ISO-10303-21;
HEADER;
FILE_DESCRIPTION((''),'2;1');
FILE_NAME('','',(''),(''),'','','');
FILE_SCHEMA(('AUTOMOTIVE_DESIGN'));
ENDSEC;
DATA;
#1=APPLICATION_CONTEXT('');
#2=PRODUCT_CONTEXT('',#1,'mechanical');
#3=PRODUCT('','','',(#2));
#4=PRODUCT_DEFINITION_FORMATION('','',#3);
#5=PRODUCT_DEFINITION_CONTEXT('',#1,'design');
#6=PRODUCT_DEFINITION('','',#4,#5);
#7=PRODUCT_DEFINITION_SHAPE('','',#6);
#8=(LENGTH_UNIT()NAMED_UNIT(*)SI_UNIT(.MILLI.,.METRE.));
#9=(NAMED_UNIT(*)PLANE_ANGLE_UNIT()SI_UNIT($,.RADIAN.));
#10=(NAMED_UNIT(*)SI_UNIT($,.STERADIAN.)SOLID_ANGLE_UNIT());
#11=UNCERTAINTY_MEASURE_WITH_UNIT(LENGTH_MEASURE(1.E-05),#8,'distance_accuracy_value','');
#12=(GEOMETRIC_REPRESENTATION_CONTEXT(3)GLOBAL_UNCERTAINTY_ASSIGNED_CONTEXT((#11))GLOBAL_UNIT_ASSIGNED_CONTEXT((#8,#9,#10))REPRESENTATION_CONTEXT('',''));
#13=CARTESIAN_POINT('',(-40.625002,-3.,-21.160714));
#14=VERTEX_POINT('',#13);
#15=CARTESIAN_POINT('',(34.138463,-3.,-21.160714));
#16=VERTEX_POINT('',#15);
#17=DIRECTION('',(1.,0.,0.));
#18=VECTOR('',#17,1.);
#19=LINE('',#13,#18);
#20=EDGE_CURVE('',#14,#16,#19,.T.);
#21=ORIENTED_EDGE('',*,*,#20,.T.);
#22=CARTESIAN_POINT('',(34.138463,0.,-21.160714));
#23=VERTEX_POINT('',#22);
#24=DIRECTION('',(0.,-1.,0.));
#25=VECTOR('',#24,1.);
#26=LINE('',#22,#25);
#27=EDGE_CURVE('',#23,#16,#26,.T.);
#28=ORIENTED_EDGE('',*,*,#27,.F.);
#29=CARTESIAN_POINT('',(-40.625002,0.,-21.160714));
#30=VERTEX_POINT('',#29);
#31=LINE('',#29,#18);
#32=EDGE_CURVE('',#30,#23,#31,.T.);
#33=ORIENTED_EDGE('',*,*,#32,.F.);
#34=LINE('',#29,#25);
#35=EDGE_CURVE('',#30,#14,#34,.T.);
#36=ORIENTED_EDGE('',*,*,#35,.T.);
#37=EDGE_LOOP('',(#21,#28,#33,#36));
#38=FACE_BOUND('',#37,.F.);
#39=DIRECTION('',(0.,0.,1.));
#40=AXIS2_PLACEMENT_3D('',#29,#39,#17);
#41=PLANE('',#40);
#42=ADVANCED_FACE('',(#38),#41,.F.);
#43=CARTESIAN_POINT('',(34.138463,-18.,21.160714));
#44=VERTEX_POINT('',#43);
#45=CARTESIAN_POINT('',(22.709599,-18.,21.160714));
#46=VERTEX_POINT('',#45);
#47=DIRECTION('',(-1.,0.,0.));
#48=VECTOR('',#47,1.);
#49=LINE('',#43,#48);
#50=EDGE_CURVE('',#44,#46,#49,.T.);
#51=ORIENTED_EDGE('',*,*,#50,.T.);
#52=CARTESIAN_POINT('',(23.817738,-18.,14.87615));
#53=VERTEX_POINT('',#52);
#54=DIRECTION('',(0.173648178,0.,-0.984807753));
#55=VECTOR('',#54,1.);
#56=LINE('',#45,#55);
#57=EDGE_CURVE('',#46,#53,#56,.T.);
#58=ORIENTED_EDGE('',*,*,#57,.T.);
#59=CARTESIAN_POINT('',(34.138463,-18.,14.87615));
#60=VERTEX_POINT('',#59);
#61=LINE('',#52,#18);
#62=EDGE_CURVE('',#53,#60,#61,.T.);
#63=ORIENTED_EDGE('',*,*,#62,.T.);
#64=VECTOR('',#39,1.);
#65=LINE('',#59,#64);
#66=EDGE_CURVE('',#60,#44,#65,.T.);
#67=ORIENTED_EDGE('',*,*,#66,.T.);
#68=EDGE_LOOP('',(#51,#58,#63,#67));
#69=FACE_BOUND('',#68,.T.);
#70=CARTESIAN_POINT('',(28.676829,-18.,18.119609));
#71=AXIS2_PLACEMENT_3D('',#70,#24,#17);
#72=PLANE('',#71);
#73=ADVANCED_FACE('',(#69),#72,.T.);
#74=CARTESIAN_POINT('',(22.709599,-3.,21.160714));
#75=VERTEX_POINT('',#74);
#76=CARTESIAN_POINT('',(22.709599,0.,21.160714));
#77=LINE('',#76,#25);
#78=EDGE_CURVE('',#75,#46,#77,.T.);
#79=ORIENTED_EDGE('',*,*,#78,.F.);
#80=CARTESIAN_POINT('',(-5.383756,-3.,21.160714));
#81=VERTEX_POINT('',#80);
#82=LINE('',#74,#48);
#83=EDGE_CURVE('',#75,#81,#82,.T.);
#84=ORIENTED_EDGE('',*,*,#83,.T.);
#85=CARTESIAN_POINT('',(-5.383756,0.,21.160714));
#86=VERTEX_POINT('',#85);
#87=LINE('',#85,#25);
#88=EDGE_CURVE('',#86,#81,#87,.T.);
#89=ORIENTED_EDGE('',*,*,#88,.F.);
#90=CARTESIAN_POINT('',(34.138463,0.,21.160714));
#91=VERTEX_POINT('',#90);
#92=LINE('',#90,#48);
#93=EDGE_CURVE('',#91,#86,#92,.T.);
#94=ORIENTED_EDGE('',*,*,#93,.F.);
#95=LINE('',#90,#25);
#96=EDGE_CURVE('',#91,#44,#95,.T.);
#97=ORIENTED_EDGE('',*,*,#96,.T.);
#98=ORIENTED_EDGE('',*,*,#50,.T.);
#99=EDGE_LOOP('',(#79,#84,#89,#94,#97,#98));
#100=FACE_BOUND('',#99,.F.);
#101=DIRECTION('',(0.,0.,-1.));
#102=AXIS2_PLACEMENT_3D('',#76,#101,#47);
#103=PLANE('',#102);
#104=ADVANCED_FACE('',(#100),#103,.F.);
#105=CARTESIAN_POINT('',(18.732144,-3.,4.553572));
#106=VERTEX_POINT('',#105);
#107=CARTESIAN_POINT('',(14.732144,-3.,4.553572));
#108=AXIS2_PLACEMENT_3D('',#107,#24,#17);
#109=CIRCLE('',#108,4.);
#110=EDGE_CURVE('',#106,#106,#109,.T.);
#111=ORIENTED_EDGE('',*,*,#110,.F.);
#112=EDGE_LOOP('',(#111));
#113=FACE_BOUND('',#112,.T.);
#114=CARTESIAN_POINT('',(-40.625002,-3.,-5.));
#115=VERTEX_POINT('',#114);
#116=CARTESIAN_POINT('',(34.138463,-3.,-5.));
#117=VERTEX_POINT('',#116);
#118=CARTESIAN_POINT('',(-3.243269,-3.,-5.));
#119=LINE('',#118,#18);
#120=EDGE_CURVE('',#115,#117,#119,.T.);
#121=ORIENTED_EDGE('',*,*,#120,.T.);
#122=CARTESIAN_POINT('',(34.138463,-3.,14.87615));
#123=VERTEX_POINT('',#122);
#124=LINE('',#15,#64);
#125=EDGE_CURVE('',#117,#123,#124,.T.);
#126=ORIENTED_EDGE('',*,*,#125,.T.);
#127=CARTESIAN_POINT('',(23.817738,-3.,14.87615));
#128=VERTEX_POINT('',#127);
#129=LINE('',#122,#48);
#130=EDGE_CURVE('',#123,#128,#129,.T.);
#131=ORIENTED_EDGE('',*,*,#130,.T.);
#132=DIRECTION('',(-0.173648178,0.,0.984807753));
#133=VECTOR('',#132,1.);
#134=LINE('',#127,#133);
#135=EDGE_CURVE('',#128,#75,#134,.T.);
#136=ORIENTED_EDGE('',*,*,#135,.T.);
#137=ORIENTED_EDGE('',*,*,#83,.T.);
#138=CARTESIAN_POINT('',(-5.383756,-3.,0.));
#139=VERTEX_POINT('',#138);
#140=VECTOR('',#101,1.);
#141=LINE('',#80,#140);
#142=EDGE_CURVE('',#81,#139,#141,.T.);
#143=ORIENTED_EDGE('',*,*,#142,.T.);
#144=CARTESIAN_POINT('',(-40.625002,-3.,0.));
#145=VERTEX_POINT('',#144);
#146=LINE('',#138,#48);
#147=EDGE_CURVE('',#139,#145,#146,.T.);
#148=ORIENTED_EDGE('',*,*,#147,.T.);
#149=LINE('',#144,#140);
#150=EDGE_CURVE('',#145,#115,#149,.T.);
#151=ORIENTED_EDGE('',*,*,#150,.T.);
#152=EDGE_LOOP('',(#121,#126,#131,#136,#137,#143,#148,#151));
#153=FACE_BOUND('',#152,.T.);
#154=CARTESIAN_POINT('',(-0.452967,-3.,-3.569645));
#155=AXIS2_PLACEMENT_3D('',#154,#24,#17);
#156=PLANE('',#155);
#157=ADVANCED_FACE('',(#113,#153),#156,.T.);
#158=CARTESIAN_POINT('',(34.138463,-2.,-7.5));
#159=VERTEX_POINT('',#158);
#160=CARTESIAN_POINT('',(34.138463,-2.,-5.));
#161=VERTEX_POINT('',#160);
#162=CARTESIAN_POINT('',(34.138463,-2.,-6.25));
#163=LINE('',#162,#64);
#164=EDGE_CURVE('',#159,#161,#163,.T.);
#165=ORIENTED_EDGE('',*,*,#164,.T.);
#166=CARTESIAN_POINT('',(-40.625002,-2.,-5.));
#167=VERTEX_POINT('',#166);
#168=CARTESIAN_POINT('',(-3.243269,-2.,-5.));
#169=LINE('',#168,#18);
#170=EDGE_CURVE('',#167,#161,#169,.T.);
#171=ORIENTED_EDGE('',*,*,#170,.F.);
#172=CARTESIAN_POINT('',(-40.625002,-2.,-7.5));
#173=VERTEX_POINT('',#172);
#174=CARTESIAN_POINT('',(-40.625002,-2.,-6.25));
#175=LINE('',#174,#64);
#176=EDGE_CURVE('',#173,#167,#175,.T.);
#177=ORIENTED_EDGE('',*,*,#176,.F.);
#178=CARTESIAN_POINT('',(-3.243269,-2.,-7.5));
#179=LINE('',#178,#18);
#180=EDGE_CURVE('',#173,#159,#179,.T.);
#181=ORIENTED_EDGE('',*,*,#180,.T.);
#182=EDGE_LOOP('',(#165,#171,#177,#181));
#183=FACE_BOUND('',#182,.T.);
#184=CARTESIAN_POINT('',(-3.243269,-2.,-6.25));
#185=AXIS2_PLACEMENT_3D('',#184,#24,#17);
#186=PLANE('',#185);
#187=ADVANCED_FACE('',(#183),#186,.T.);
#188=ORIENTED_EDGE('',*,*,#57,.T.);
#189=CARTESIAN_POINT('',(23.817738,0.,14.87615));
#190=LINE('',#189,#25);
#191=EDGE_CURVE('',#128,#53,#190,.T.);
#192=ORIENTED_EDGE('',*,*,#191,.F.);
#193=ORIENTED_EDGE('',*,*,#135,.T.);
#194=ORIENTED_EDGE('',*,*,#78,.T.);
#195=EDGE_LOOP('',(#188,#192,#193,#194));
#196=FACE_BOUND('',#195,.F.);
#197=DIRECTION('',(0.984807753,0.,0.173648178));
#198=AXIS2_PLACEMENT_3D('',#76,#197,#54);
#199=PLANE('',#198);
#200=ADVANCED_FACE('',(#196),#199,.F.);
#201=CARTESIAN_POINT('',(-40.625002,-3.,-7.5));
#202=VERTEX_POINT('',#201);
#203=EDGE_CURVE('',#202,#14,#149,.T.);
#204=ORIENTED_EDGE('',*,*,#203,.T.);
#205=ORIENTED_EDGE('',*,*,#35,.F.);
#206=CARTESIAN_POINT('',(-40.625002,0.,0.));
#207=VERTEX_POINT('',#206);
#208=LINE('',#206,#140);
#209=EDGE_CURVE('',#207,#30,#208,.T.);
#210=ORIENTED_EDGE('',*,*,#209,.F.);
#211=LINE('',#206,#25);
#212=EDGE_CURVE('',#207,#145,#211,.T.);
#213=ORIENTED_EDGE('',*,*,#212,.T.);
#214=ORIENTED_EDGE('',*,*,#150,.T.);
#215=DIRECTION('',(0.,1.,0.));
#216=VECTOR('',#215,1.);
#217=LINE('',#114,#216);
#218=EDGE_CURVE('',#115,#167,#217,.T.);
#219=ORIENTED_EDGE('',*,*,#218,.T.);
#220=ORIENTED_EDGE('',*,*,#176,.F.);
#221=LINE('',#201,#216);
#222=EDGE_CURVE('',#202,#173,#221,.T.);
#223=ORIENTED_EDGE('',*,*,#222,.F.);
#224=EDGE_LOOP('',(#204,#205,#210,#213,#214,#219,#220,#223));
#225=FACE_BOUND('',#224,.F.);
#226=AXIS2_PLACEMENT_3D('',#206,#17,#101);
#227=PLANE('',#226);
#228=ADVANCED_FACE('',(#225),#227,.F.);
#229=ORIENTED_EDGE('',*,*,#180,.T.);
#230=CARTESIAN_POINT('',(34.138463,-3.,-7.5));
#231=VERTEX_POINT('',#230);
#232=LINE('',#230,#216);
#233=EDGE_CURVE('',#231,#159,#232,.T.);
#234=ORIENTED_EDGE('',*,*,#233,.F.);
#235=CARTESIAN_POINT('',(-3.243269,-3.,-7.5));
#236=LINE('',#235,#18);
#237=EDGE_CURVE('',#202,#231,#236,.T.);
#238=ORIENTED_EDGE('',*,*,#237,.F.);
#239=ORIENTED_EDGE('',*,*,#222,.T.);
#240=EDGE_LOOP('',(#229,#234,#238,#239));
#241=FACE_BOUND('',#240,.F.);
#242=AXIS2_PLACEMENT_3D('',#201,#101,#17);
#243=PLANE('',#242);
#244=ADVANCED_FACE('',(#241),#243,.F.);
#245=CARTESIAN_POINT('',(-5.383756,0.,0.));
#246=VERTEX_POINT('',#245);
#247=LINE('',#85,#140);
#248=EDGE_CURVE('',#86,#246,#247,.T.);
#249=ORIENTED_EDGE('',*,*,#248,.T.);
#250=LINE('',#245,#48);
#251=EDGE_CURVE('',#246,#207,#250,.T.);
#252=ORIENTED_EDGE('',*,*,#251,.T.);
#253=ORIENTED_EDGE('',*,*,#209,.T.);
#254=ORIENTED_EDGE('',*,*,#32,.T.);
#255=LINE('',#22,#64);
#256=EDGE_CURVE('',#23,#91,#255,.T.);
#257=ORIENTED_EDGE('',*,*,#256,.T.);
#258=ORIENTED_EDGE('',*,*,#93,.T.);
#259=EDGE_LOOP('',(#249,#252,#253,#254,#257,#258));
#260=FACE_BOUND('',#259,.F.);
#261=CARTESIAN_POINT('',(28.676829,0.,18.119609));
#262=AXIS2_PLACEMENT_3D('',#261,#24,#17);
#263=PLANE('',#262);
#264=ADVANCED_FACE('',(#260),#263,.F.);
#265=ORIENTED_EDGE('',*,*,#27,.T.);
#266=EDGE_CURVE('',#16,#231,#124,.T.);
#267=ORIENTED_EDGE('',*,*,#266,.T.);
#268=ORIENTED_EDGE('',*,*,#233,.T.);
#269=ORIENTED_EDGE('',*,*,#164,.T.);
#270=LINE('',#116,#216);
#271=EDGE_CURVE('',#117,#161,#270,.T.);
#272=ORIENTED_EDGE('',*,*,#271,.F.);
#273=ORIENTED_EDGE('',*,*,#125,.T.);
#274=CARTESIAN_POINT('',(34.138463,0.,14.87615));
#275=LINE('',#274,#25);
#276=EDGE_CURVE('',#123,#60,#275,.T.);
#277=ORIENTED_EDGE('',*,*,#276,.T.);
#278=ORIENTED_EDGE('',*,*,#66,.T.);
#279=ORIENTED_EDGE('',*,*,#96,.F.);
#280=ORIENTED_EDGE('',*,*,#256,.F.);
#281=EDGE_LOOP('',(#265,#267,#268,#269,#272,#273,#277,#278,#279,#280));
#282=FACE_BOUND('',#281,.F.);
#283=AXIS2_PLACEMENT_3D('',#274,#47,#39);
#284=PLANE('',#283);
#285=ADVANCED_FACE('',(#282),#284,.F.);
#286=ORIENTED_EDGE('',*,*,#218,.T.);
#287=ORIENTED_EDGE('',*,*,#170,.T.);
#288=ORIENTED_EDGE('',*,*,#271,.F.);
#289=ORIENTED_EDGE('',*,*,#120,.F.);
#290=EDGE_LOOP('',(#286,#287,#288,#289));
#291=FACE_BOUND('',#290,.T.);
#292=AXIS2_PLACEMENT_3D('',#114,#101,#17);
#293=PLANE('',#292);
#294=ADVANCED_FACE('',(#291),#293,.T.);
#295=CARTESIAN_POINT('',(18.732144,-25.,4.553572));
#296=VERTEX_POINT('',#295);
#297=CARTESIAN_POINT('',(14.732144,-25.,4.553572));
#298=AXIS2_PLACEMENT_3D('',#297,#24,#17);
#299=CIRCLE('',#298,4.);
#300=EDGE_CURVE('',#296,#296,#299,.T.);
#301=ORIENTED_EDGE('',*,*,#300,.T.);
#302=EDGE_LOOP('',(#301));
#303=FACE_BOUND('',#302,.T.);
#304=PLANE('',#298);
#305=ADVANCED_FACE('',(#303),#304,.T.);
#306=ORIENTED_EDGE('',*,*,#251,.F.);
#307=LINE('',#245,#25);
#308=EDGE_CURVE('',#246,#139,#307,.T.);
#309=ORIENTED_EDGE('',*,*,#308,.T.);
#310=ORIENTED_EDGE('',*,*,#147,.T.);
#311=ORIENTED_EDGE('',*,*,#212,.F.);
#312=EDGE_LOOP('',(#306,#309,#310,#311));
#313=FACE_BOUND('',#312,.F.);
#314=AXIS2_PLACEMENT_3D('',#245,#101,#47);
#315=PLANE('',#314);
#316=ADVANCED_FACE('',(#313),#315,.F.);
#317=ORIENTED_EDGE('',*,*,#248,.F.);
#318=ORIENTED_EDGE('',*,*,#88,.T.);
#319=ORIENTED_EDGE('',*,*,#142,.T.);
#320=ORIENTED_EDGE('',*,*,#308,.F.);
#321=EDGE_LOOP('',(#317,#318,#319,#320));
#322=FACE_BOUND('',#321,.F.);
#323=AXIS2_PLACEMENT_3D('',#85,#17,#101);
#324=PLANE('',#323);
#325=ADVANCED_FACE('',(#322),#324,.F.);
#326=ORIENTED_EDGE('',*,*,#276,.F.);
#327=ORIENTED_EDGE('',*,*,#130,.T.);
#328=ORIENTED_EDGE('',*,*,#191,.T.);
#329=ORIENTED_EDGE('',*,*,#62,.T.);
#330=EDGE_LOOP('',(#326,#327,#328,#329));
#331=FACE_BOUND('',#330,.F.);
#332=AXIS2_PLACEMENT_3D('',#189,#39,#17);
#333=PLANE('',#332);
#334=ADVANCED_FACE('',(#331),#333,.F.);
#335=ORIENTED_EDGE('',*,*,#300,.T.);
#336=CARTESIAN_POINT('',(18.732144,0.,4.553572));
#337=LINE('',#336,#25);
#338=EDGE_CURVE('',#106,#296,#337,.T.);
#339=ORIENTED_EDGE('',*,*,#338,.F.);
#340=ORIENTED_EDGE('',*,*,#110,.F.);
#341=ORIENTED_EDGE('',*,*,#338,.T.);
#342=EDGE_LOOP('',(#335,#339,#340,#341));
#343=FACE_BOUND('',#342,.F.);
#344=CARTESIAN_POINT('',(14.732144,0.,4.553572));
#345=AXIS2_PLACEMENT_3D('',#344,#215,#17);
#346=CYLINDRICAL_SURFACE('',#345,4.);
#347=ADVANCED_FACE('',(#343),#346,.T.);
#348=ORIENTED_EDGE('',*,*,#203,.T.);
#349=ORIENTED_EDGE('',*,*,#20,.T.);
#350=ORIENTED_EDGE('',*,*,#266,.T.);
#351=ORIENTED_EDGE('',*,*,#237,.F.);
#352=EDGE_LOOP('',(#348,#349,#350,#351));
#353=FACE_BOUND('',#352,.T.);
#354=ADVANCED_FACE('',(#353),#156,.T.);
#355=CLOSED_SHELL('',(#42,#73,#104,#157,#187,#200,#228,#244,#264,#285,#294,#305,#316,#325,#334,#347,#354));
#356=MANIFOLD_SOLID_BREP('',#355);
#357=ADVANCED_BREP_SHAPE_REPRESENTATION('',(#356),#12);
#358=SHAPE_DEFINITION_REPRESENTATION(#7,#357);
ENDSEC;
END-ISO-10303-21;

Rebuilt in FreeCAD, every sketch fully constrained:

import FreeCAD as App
import Part
import Sketcher
Q = App.Units.Quantity


def add_polygon(sketch, points):
    """Adds a closed chain of lines whose ends are joined by coincident constraints."""
    first, n = sketch.GeometryCount, len(points)
    for a, b in zip(points, points[1:] + points[:1]):
        sketch.addGeometry(Part.LineSegment(App.Vector(*a, 0), App.Vector(*b, 0)), False)
    for i in range(n):
        sketch.addConstraint(Sketcher.Constraint("Coincident", first + i, 2, first + (i + 1) % n, 1))

doc = App.newDocument("Part")
params = doc.addObject("Spreadsheet::Sheet", "Params")
for row, (alias, value) in enumerate([
    ("sketch1_diameter", "8 mm"),
    ("pad1_length", "3 mm"),
    ("sketch2_diameter", "8 mm"),
    ("pad2_length", "25 mm"),
    ("sketch3_height", "2.5 mm"),
    ("pocket1_length", "1 mm"),
    ("pad3_length", "18 mm"),
], start=1):
    params.set(f"A{row}", alias)
    params.set(f"B{row}", "=" + value)
    params.setAlias(f"B{row}", alias)

body = doc.addObject("PartDesign::Body", "Body")

sketch1 = body.newObject("Sketcher::SketchObject", "Sketch")
sketch1.AttachmentSupport = (doc.getObject("XZ_Plane"), [""])
sketch1.MapMode = "FlatFace"
add_polygon(sketch1, [(-5.4, 0), (-40.6, 0), (-40.6, -21.2), (34.1, -21.2), (34.1, 14.9), (23.8, 14.9), (22.7, 21.2), (-5.4, 21.2)])
sketch1.addGeometry(Part.Circle(App.Vector(14.7, 4.6, 0), App.Vector(0, 0, 1), 4), False)
sketch1.addConstraint(Sketcher.Constraint("Horizontal", 0))
sketch1.addConstraint(Sketcher.Constraint("Vertical", 1))
sketch1.addConstraint(Sketcher.Constraint("Horizontal", 2))
sketch1.addConstraint(Sketcher.Constraint("Vertical", 3))
sketch1.addConstraint(Sketcher.Constraint("Horizontal", 4))
sketch1.addConstraint(Sketcher.Constraint("Horizontal", 6))
sketch1.addConstraint(Sketcher.Constraint("Vertical", 7))
sketch1.addConstraint(Sketcher.Constraint("PointOnObject", 0, 2, -1))
sketch1.addConstraint(Sketcher.Constraint("Equal", 1, 7))
sketch1.addConstraint(Sketcher.Constraint("Diameter", 8, Q("8 mm")))
sketch1.addConstraint(Sketcher.Constraint("Angle", 5, Q("100 deg")))
sketch1.addConstraint(Sketcher.Constraint("DistanceX", -1, 1, 5, 2, Q("22.709599 mm")))
sketch1.addConstraint(Sketcher.Constraint("DistanceX", 0, 2, 5, 2, Q("63.334602 mm")))
sketch1.addConstraint(Sketcher.Constraint("DistanceX", 6, 2, 8, 3, Q("20.1159 mm")))
sketch1.addConstraint(Sketcher.Constraint("DistanceX", 0, 2, 0, 1, Q("35.241246 mm")))
sketch1.addConstraint(Sketcher.Constraint("DistanceX", 2, 1, 2, 2, Q("74.763466 mm")))
sketch1.addConstraint(Sketcher.Constraint("DistanceX", 4, 2, 4, 1, Q("10.320726 mm")))
sketch1.addConstraint(Sketcher.Constraint("DistanceY", 1, 2, 1, 1, Q("21.160714 mm")))
sketch1.addConstraint(Sketcher.Constraint("DistanceY", -1, 1, 8, 3, Q("4.553572 mm")))
sketch1.setExpression("Constraints[17]", "Params.sketch1_diameter")
pad1 = body.newObject("PartDesign::Pad", "Pad")
pad1.Profile = sketch1
pad1.setExpression("Length", "Params.pad1_length")

sketch2 = body.newObject("Sketcher::SketchObject", "Sketch001")
sketch2.AttachmentSupport = (doc.getObject("XZ_Plane"), [""])
sketch2.MapMode = "FlatFace"
sketch2.addGeometry(Part.Circle(App.Vector(14.7, 4.6, 0), App.Vector(0, 0, 1), 4), False)
sketch2.addConstraint(Sketcher.Constraint("Diameter", 0, Q("8 mm")))
sketch2.addConstraint(Sketcher.Constraint("DistanceY", -1, 1, 0, 3, Q("4.553572 mm")))
sketch2.addConstraint(Sketcher.Constraint("DistanceX", -1, 1, 0, 3, Q("14.732144 mm")))
sketch2.setExpression("Constraints[0]", "Params.sketch2_diameter")
pad2 = body.newObject("PartDesign::Pad", "Pad001")
pad2.Profile = sketch2
pad2.setExpression("Length", "Params.pad2_length")

sketch3 = body.newObject("Sketcher::SketchObject", "Sketch002")
sketch3.AttachmentSupport = (doc.getObject("XZ_Plane"), [""])
sketch3.MapMode = "FlatFace"
sketch3.AttachmentOffset = App.Placement(App.Vector(0, 0, 3), App.Rotation())
add_polygon(sketch3, [(-40.6, -5), (-40.6, -7.5), (34.1, -7.5), (34.1, -5)])
sketch3.addConstraint(Sketcher.Constraint("Vertical", 0))
sketch3.addConstraint(Sketcher.Constraint("Horizontal", 1))
sketch3.addConstraint(Sketcher.Constraint("Vertical", 2))
sketch3.addConstraint(Sketcher.Constraint("Horizontal", 3))
sketch3.addConstraint(Sketcher.Constraint("DistanceY", 0, 2, 0, 1, Q("2.5 mm")))
sketch3.addConstraint(Sketcher.Constraint("DistanceY", 2, 2, -1, 1, Q("5 mm")))
sketch3.addConstraint(Sketcher.Constraint("DistanceX", 1, 1, 1, 2, Q("74.763466 mm")))
sketch3.addConstraint(Sketcher.Constraint("DistanceX", 0, 2, -1, 1, Q("40.625002 mm")))
sketch3.setExpression("Constraints[8]", "Params.sketch3_height")
pocket1 = body.newObject("PartDesign::Pocket", "Pocket")
pocket1.Profile = sketch3
pocket1.setExpression("Length", "Params.pocket1_length")

sketch4 = body.newObject("Sketcher::SketchObject", "Sketch003")
sketch4.AttachmentSupport = (doc.getObject("XZ_Plane"), [""])
sketch4.MapMode = "FlatFace"
add_polygon(sketch4, [(24, 15), (34, 15), (34, 21), (23, 21)])
sketch4.addConstraint(Sketcher.Constraint("Horizontal", 0))
sketch4.addConstraint(Sketcher.Constraint("Vertical", 1))
sketch4.addConstraint(Sketcher.Constraint("Horizontal", 2))
sketch4.addConstraint(Sketcher.Constraint("Angle", 3, Q("-80 deg")))
sketch4.addConstraint(Sketcher.Constraint("DistanceX", -1, 1, 2, 2, Q("22.709599 mm")))
sketch4.addConstraint(Sketcher.Constraint("DistanceX", 0, 1, 0, 2, Q("10.320726 mm")))
sketch4.addConstraint(Sketcher.Constraint("DistanceX", 2, 2, 2, 1, Q("11.428864 mm")))
sketch4.addConstraint(Sketcher.Constraint("DistanceY", -1, 1, 0, 2, Q("14.87615 mm")))
pad3 = body.newObject("PartDesign::Pad", "Pad002")
pad3.Profile = sketch4
pad3.setExpression("Length", "Params.pad3_length")

doc.recompute()
